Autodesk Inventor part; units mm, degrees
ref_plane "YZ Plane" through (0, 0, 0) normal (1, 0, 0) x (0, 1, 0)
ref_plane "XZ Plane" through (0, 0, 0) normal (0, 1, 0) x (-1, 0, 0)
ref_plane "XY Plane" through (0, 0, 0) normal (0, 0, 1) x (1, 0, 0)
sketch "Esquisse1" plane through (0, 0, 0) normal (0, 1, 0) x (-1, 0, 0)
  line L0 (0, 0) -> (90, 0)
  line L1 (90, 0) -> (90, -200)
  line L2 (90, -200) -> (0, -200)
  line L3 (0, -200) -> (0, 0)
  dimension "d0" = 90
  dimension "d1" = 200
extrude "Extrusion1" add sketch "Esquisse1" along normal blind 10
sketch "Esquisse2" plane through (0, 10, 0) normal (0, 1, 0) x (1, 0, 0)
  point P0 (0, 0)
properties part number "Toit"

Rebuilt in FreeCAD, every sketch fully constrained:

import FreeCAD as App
import Part
import Sketcher

V = App.Vector
Q = App.Units.Quantity


def add_polygon(sketch, points):
    """Adds a closed chain of lines whose ends are joined by coincident constraints."""
    first, n = sketch.GeometryCount, len(points)
    for a, b in zip(points, points[1:] + points[:1]):
        sketch.addGeometry(Part.LineSegment(App.Vector(*a, 0), App.Vector(*b, 0)), False)
    for i in range(n):
        sketch.addConstraint(Sketcher.Constraint("Coincident", first + i, 2, first + (i + 1) % n, 1))

doc = App.newDocument("Part")
body = doc.addObject("PartDesign::Body", "Body")

# Sketch on XZ plane
sketch1 = doc.addObject("Sketcher::SketchObject", "Sketch")
body.addObject(sketch1)
sketch1.AttachmentSupport = (doc.XZ_Plane, [""])
sketch1.MapMode = "FlatFace"
add_polygon(sketch1, [(-90, 0), (0, 0), (0, -200), (-90, -200)])  # lines 0-3
sketch1.addConstraint([
    Sketcher.Constraint("Horizontal", 0),
    Sketcher.Constraint("Vertical", 1),
    Sketcher.Constraint("Horizontal", 2),
    Sketcher.Constraint("Vertical", 3),
    Sketcher.Constraint("Coincident", 0, 2, -1, 1),
    Sketcher.Constraint("DistanceX", 0, 1, 0, 2, Q("90 mm")),
    Sketcher.Constraint("DistanceY", 1, 2, 1, 1, Q("200 mm")),
])
pad1 = doc.addObject("PartDesign::Pad", "Pad")
body.addObject(pad1)
pad1.Profile = sketch1
pad1.Length = 10
pad1.Reversed = True

doc.recompute()
